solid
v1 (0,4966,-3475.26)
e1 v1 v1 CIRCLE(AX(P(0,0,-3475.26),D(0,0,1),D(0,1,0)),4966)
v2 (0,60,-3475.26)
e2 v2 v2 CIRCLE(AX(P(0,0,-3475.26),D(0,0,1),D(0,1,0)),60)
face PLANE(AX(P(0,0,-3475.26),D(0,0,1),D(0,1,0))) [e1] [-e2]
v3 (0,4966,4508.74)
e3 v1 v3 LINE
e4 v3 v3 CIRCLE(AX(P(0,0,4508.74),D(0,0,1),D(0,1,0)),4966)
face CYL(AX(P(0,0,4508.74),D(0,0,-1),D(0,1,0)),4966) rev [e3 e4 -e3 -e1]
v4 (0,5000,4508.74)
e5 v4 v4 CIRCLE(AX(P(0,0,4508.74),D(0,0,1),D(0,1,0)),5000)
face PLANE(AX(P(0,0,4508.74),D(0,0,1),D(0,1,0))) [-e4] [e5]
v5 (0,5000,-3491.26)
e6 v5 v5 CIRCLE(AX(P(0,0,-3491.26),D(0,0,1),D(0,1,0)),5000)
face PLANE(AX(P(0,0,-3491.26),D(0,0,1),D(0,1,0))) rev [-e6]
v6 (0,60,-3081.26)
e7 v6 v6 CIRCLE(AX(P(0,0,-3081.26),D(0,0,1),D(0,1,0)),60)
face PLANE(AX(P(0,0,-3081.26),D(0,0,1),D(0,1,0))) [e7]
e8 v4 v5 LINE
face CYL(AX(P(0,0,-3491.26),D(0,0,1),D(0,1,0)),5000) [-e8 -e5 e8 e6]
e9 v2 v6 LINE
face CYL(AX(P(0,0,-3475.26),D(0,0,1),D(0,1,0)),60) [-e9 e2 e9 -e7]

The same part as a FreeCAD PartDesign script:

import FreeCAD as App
import Part
import Sketcher

V = App.Vector


def add_polygon(sketch, points):
    """Adds a closed chain of lines whose ends are joined by coincident constraints."""
    first, n = sketch.GeometryCount, len(points)
    for a, b in zip(points, points[1:] + points[:1]):
        sketch.addGeometry(Part.LineSegment(App.Vector(*a, 0), App.Vector(*b, 0)), False)
    for i in range(n):
        sketch.addConstraint(Sketcher.Constraint("Coincident", first + i, 2, first + (i + 1) % n, 1))

doc = App.newDocument("Part")
body = doc.addObject("PartDesign::Body", "Body")

# Sketch on YZ plane
sketch1 = doc.addObject("Sketcher::SketchObject", "Sketch")
body.addObject(sketch1)
sketch1.AttachmentSupport = (doc.YZ_Plane, [""])
sketch1.MapMode = "FlatFace"
add_polygon(sketch1, [(60, -3081), (0, -3081), (0, -3491), (5000, -3491), (5000, 4509), (4966, 4509), (4966, -3475), (60, -3475)])  # lines 0-7
sketch1.addConstraint([
    Sketcher.Constraint("Horizontal", 0),
    Sketcher.Constraint("Vertical", 1),
    Sketcher.Constraint("Horizontal", 2),
    Sketcher.Constraint("Vertical", 3),
    Sketcher.Constraint("Horizontal", 4),
    Sketcher.Constraint("Vertical", 5),
    Sketcher.Constraint("Horizontal", 6),
    Sketcher.Constraint("Vertical", 7),
    Sketcher.Constraint("PointOnObject", 0, 2, -2),
    Sketcher.Constraint("DistanceX", 0, 2, 0, 1, 60.0),
    Sketcher.Constraint("DistanceX", 2, 1, 2, 2, 5000.0),
    Sketcher.Constraint("DistanceX", 4, 2, 4, 1, 34.0),
    Sketcher.Constraint("DistanceY", 1, 2, 1, 1, 410.0),
    Sketcher.Constraint("DistanceY", 3, 1, 3, 2, 8000.0),
    Sketcher.Constraint("DistanceY", 5, 2, 5, 1, 7984.0),
    Sketcher.Constraint("DistanceY", 5, 2, -1, 1, 3475.26),
])
revolution = doc.addObject("PartDesign::Revolution", "Revolution")
body.addObject(revolution)
revolution.Profile = sketch1
revolution.ReferenceAxis = (sketch1, ["V_Axis"])
revolution.Angle = 360

doc.recompute()
